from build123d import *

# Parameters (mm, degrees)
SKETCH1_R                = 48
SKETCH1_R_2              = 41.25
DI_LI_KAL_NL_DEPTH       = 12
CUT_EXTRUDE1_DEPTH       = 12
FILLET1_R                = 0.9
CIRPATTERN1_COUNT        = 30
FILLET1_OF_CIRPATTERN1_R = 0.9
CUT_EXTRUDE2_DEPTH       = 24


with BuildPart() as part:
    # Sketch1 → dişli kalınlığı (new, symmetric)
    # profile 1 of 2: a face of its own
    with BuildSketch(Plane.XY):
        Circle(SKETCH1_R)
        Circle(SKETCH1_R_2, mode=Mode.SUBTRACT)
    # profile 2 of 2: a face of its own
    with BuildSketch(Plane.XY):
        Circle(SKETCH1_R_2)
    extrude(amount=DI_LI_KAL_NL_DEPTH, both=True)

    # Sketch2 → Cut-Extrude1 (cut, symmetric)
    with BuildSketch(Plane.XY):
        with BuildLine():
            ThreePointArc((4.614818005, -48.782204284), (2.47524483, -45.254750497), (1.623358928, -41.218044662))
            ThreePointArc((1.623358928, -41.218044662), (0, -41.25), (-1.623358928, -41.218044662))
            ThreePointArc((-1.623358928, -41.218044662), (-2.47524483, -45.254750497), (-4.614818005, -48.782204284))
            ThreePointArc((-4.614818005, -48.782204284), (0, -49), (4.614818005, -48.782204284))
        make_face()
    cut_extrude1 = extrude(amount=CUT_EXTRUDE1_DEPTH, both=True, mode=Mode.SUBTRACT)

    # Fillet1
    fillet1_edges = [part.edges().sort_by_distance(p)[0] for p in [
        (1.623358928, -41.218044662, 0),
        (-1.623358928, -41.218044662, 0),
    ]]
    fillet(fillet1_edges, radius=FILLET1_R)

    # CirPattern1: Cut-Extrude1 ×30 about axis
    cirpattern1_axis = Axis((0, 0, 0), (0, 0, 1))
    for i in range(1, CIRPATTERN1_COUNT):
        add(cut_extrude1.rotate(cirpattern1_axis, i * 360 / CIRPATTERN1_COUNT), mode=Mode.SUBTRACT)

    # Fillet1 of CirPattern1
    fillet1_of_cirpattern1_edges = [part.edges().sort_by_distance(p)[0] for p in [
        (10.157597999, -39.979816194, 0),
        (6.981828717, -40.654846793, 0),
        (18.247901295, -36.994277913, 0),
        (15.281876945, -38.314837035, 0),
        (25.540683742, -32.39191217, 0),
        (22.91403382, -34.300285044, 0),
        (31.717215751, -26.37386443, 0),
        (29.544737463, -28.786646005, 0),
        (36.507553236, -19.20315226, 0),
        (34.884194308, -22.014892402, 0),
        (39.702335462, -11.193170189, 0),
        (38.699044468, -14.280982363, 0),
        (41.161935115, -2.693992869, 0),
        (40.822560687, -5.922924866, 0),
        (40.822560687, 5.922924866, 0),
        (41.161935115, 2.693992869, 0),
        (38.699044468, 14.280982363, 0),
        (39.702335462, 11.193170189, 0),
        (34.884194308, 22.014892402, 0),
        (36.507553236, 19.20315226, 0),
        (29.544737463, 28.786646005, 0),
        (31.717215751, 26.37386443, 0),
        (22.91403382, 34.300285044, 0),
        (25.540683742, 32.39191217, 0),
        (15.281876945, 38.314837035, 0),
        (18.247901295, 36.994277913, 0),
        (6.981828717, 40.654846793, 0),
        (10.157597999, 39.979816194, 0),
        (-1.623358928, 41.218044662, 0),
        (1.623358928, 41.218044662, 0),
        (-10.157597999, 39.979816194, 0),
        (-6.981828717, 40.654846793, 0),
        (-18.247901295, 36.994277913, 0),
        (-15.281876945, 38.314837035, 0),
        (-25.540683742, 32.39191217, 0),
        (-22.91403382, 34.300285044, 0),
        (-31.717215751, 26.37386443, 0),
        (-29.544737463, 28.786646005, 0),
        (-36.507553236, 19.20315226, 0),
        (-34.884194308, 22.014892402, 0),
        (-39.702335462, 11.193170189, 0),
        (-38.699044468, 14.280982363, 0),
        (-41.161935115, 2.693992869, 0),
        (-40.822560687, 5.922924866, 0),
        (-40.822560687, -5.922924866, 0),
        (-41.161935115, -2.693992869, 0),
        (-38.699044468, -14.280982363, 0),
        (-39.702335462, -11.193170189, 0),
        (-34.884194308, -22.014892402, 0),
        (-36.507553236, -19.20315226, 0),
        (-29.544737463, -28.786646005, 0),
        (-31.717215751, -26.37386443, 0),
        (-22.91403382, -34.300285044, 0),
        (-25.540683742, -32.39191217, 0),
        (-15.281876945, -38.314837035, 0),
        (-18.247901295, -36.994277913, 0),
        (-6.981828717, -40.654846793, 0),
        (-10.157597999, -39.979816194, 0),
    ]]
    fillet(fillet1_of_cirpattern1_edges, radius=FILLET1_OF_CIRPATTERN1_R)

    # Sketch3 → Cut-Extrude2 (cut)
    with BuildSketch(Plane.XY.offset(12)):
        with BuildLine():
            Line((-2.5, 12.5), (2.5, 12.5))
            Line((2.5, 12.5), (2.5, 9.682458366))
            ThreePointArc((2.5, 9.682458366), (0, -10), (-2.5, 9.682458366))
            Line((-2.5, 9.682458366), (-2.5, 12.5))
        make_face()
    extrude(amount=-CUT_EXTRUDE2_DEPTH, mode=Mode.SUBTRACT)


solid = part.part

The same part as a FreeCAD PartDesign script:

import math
import FreeCAD as App
import Part
import Sketcher

V = App.Vector
Q = App.Units.Quantity


def edges_at(feature, points):
    """Names of the edges that pass closest to the given points."""
    edges = feature.Shape.Edges
    near = lambda p: min(range(len(edges)), key=lambda i: edges[i].distToShape(Part.Vertex(*p))[0])
    return sorted({f"Edge{near(p) + 1}" for p in points})

doc = App.newDocument("Part")
params = doc.addObject("Spreadsheet::Sheet", "Params")
for row, (alias, value) in enumerate([
    ("sketch1_diameter", "96 mm"),
    ("pad1_length", "24 mm"),
    ("sketch2_radius", "49 mm"),
    ("sketch2_radius2", "41.249999 mm"),
    ("pocket1_length", "24 mm"),
    ("fillet_radius", "0.9 mm"),
    ("fillet2_radius", "0.9 mm"),
    ("sketch3_radius", "10 mm"),
    ("sketch3_width", "5 mm"),
    ("pocket2_length", "24 mm"),
], start=1):
    params.set(f"A{row}", alias)
    params.set(f"B{row}", "=" + value)
    params.setAlias(f"B{row}", alias)

body = doc.addObject("PartDesign::Body", "Body")

# Sketch on XY plane
sketch1 = body.newObject("Sketcher::SketchObject", "Sketch")
sketch1.AttachmentSupport = (doc.getObject("XY_Plane"), [""])
sketch1.MapMode = "FlatFace"
sketch1.addGeometry(Part.Circle(V(0, 0, 0), V(0, 0, 1), 48), False)
sketch1.addConstraint(Sketcher.Constraint("Coincident", 0, 3, -1, 1))
sketch1.addConstraint(Sketcher.Constraint("Diameter", 0, Q("96 mm")))
sketch1.setExpression("Constraints[1]", "Params.sketch1_diameter")
pad1 = body.newObject("PartDesign::Pad", "Pad")
pad1.Profile = sketch1
pad1.setExpression("Length", "Params.pad1_length")
pad1.Midplane = True

# Sketch on XY plane
sketch2 = body.newObject("Sketcher::SketchObject", "Sketch001")
sketch2.AttachmentSupport = (doc.getObject("XY_Plane"), [""])
sketch2.MapMode = "FlatFace"
sketch2.addGeometry(Part.ArcOfCircle(Part.Circle(V(13.9, -40.7, 0), V(0, 0, 1), 12.3), math.radians(-178), math.radians(-139)), False)
sketch2.addGeometry(Part.ArcOfCircle(Part.Circle(V(0, 0, 0), V(0, 0, 1), 41.2), math.radians(-92.26), math.radians(-87.74)), False)
sketch2.addGeometry(Part.ArcOfCircle(Part.Circle(V(-13.9, -40.7, 0), V(0, 0, 1), 12.3), math.radians(-41), math.radians(-2)), False)
sketch2.addGeometry(Part.ArcOfCircle(Part.Circle(V(0, 0, 0), V(0, 0, 1), 49), math.radians(-95.4), math.radians(-84.6)), False)
sketch2.addConstraint(Sketcher.Constraint("Coincident", 0, 1, 1, 2))
sketch2.addConstraint(Sketcher.Constraint("Coincident", 1, 1, 2, 2))
sketch2.addConstraint(Sketcher.Constraint("Coincident", 2, 1, 3, 1))
sketch2.addConstraint(Sketcher.Constraint("Coincident", 3, 2, 0, 2))
sketch2.addConstraint(Sketcher.Constraint("Coincident", 1, 3, -1, 1))
sketch2.addConstraint(Sketcher.Constraint("Coincident", 3, 3, -1, 1))
sketch2.addConstraint(Sketcher.Constraint("Equal", 0, 2))
sketch2.addConstraint(Sketcher.Constraint("Symmetric", 0, 3, 2, 3, -2))
sketch2.addConstraint(Sketcher.Constraint("Radius", 3, Q("49 mm")))
sketch2.addConstraint(Sketcher.Constraint("Radius", 1, Q("41.249999 mm")))
sketch2.addConstraint(Sketcher.Constraint("Radius", 0, Q("12.291716 mm")))
sketch2.addConstraint(Sketcher.Constraint("DistanceX", -1, 1, 0, 1, Q("1.623359 mm")))
sketch2.addConstraint(Sketcher.Constraint("DistanceX", 2, 1, -1, 1, Q("4.614818 mm")))
sketch2.setExpression("Constraints[8]", "Params.sketch2_radius")
sketch2.setExpression("Constraints[9]", "Params.sketch2_radius2")
pocket1 = body.newObject("PartDesign::Pocket", "Pocket")
pocket1.Profile = sketch2
pocket1.setExpression("Length", "Params.pocket1_length")
pocket1.Midplane = True
doc.recompute()

fillet = body.newObject("PartDesign::Fillet", "Fillet")
fillet.Base = (pocket1, edges_at(pocket1, [(1.623, -41.218, 0), (-1.623, -41.218, 0)]))
fillet.setExpression("Radius", "Params.fillet_radius")
doc.recompute()

polarpattern = body.newObject("PartDesign::PolarPattern", "PolarPattern")
polarpattern.Originals = [pocket1]
polarpattern.Axis = (doc.getObject("Z_Axis"), [""])
polarpattern.Angle = 360
polarpattern.Occurrences = 30
body.Tip = polarpattern
doc.recompute()

fillet2 = body.newObject("PartDesign::Fillet", "Fillet001")
fillet2.Base = (polarpattern, edges_at(polarpattern, [
    (10.158, -39.98, 0),
    (6.982, -40.655, 0),
    (18.248, -36.994, 0),
    (15.282, -38.315, 0),
    (25.541, -32.392, 0),
    (22.914, -34.3, 0),
    (31.717, -26.374, 0),
    (29.545, -28.787, 0),
    (36.508, -19.203, 0),
    (34.884, -22.015, 0),
    (39.702, -11.193, 0),
    (38.699, -14.281, 0),
    (41.162, -2.694, 0),
    (40.823, -5.923, 0),
    (40.823, 5.923, 0),
    (41.162, 2.694, 0),
    (38.699, 14.281, 0),
    (39.702, 11.193, 0),
    (34.884, 22.015, 0),
    (36.508, 19.203, 0),
    (29.545, 28.787, 0),
    (31.717, 26.374, 0),
    (22.914, 34.3, 0),
    (25.541, 32.392, 0),
    (15.282, 38.315, 0),
    (18.248, 36.994, 0),
    (6.982, 40.655, 0),
    (10.158, 39.98, 0),
    (-1.623, 41.218, 0),
    (1.623, 41.218, 0),
    (-10.158, 39.98, 0),
    (-6.982, 40.655, 0),
    (-18.248, 36.994, 0),
    (-15.282, 38.315, 0),
    (-25.541, 32.392, 0),
    (-22.914, 34.3, 0),
    (-31.717, 26.374, 0),
    (-29.545, 28.787, 0),
    (-36.508, 19.203, 0),
    (-34.884, 22.015, 0),
    (-39.702, 11.193, 0),
    (-38.699, 14.281, 0),
    (-41.162, 2.694, 0),
    (-40.823, 5.923, 0),
    (-40.823, -5.923, 0),
    (-41.162, -2.694, 0),
    (-38.699, -14.281, 0),
    (-39.702, -11.193, 0),
    (-34.884, -22.015, 0),
    (-36.508, -19.203, 0),
    (-29.545, -28.787, 0),
    (-31.717, -26.374, 0),
    (-22.914, -34.3, 0),
    (-25.541, -32.392, 0),
    (-15.282, -38.315, 0),
    (-18.248, -36.994, 0),
    (-6.982, -40.655, 0),
    (-10.158, -39.98, 0),
]))
fillet2.setExpression("Radius", "Params.fillet2_radius")

# Sketch on XY plane
sketch3 = body.newObject("Sketcher::SketchObject", "Sketch002")
sketch3.AttachmentSupport = (doc.getObject("XY_Plane"), [""])
sketch3.MapMode = "FlatFace"
sketch3.AttachmentOffset = App.Placement(V(0, 0, 12), App.Rotation())
sketch3.addGeometry(Part.LineSegment(V(2.5, 12.5, 0), V(-2.5, 12.5, 0)), False)
sketch3.addGeometry(Part.LineSegment(V(-2.5, 12.5, 0), V(-2.5, 9.7, 0)), False)
sketch3.addGeometry(Part.ArcOfCircle(Part.Circle(V(0, 0, 0), V(0, 0, 1), 10), math.radians(104), math.radians(436)), False)
sketch3.addGeometry(Part.LineSegment(V(2.5, 9.7, 0), V(2.5, 12.5, 0)), False)
sketch3.addConstraint(Sketcher.Constraint("Coincident", 0, 2, 1, 1))
sketch3.addConstraint(Sketcher.Constraint("Coincident", 1, 2, 2, 1))
sketch3.addConstraint(Sketcher.Constraint("Coincident", 2, 2, 3, 1))
sketch3.addConstraint(Sketcher.Constraint("Coincident", 3, 2, 0, 1))
sketch3.addConstraint(Sketcher.Constraint("Horizontal", 0))
sketch3.addConstraint(Sketcher.Constraint("Vertical", 1))
sketch3.addConstraint(Sketcher.Constraint("Vertical", 3))
sketch3.addConstraint(Sketcher.Constraint("Coincident", 2, 3, -1, 1))
sketch3.addConstraint(Sketcher.Constraint("Horizontal", 1, 2, 2, 2))
sketch3.addConstraint(Sketcher.Constraint("Radius", 2, Q("10 mm")))
sketch3.addConstraint(Sketcher.Constraint("DistanceX", 0, 2, 0, 1, Q("5 mm")))
sketch3.addConstraint(Sketcher.Constraint("DistanceY", -1, 1, 0, 2, Q("12.5 mm")))
sketch3.setExpression("Constraints[9]", "Params.sketch3_radius")
sketch3.setExpression("Constraints[10]", "Params.sketch3_width")
pocket2 = body.newObject("PartDesign::Pocket", "Pocket001")
pocket2.Profile = sketch3
pocket2.setExpression("Length", "Params.pocket2_length")

doc.recompute()
